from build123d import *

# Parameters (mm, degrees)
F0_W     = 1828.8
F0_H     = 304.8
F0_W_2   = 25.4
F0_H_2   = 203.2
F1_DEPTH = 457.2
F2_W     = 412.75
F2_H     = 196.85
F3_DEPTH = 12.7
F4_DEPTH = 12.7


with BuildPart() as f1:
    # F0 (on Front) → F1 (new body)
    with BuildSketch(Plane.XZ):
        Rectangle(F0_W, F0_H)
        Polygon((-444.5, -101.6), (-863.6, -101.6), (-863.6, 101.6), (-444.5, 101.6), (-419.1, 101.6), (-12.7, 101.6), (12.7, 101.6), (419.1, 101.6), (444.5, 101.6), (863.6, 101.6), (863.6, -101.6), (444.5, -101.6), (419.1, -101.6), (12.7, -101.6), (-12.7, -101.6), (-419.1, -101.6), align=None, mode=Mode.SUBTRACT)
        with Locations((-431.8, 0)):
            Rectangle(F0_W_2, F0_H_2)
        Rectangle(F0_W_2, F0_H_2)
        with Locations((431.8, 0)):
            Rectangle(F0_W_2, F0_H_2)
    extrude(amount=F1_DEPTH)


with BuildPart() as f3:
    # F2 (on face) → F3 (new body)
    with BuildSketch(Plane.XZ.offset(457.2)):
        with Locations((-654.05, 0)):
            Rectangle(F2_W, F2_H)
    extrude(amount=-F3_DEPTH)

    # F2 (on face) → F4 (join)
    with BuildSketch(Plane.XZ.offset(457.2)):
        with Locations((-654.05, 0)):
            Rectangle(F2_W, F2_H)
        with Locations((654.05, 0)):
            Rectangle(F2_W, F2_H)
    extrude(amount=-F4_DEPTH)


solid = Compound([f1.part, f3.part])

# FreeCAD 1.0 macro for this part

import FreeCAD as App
import Part
import Sketcher
from FreeCAD import Vector
Q = App.Units.Quantity

doc = App.newDocument("Part")
body = doc.addObject("PartDesign::Body", "Body")

# Sketch on XZ plane
sketch1 = body.newObject("Sketcher::SketchObject", "Sketch")
sketch1.AttachmentSupport = (doc.getObject("XZ_Plane"), [""])
sketch1.MapMode = "FlatFace"
sketch1.addGeometry(Part.LineSegment(Vector(-914, 152, 0), Vector(-914, -152, 0)), False)
sketch1.addGeometry(Part.LineSegment(Vector(-914, -152, 0), Vector(914, -152, 0)), False)
sketch1.addGeometry(Part.LineSegment(Vector(914, -152, 0), Vector(914, 152, 0)), False)
sketch1.addGeometry(Part.LineSegment(Vector(914, 152, 0), Vector(-914, 152, 0)), False)
sketch1.addGeometry(Part.LineSegment(Vector(864, -102, 0), Vector(444, -102, 0)), False)
sketch1.addGeometry(Part.LineSegment(Vector(444, -102, 0), Vector(444, 102, 0)), False)
sketch1.addGeometry(Part.LineSegment(Vector(444, 102, 0), Vector(864, 102, 0)), False)
sketch1.addGeometry(Part.LineSegment(Vector(864, 102, 0), Vector(864, -102, 0)), False)
sketch1.addGeometry(Part.LineSegment(Vector(419, -102, 0), Vector(13, -102, 0)), False)
sketch1.addGeometry(Part.LineSegment(Vector(13, -102, 0), Vector(13, 102, 0)), False)
sketch1.addGeometry(Part.LineSegment(Vector(13, 102, 0), Vector(419, 102, 0)), False)
sketch1.addGeometry(Part.LineSegment(Vector(419, 102, 0), Vector(419, -102, 0)), False)
sketch1.addGeometry(Part.LineSegment(Vector(-13, -102, 0), Vector(-419, -102, 0)), False)
sketch1.addGeometry(Part.LineSegment(Vector(-419, -102, 0), Vector(-419, 102, 0)), False)
sketch1.addGeometry(Part.LineSegment(Vector(-419, 102, 0), Vector(-13, 102, 0)), False)
sketch1.addGeometry(Part.LineSegment(Vector(-13, 102, 0), Vector(-13, -102, 0)), False)
sketch1.addGeometry(Part.LineSegment(Vector(-444, -102, 0), Vector(-864, -102, 0)), False)
sketch1.addGeometry(Part.LineSegment(Vector(-864, -102, 0), Vector(-864, 102, 0)), False)
sketch1.addGeometry(Part.LineSegment(Vector(-864, 102, 0), Vector(-444, 102, 0)), False)
sketch1.addGeometry(Part.LineSegment(Vector(-444, 102, 0), Vector(-444, -102, 0)), False)
sketch1.addConstraint(Sketcher.Constraint("Coincident", 0, 2, 1, 1))
sketch1.addConstraint(Sketcher.Constraint("Coincident", 1, 2, 2, 1))
sketch1.addConstraint(Sketcher.Constraint("Coincident", 2, 2, 3, 1))
sketch1.addConstraint(Sketcher.Constraint("Coincident", 3, 2, 0, 1))
sketch1.addConstraint(Sketcher.Constraint("Coincident", 4, 2, 5, 1))
sketch1.addConstraint(Sketcher.Constraint("Coincident", 5, 2, 6, 1))
sketch1.addConstraint(Sketcher.Constraint("Coincident", 6, 2, 7, 1))
sketch1.addConstraint(Sketcher.Constraint("Coincident", 7, 2, 4, 1))
sketch1.addConstraint(Sketcher.Constraint("Coincident", 8, 2, 9, 1))
sketch1.addConstraint(Sketcher.Constraint("Coincident", 9, 2, 10, 1))
sketch1.addConstraint(Sketcher.Constraint("Coincident", 10, 2, 11, 1))
sketch1.addConstraint(Sketcher.Constraint("Coincident", 11, 2, 8, 1))
sketch1.addConstraint(Sketcher.Constraint("Coincident", 12, 2, 13, 1))
sketch1.addConstraint(Sketcher.Constraint("Coincident", 13, 2, 14, 1))
sketch1.addConstraint(Sketcher.Constraint("Coincident", 14, 2, 15, 1))
sketch1.addConstraint(Sketcher.Constraint("Coincident", 15, 2, 12, 1))
sketch1.addConstraint(Sketcher.Constraint("Coincident", 16, 2, 17, 1))
sketch1.addConstraint(Sketcher.Constraint("Coincident", 17, 2, 18, 1))
sketch1.addConstraint(Sketcher.Constraint("Coincident", 18, 2, 19, 1))
sketch1.addConstraint(Sketcher.Constraint("Coincident", 19, 2, 16, 1))
sketch1.addConstraint(Sketcher.Constraint("Vertical", 0))
sketch1.addConstraint(Sketcher.Constraint("Horizontal", 1))
sketch1.addConstraint(Sketcher.Constraint("Vertical", 2))
sketch1.addConstraint(Sketcher.Constraint("Horizontal", 3))
sketch1.addConstraint(Sketcher.Constraint("Horizontal", 4))
sketch1.addConstraint(Sketcher.Constraint("Vertical", 5))
sketch1.addConstraint(Sketcher.Constraint("Horizontal", 6))
sketch1.addConstraint(Sketcher.Constraint("Vertical", 7))
sketch1.addConstraint(Sketcher.Constraint("Horizontal", 8))
sketch1.addConstraint(Sketcher.Constraint("Vertical", 9))
sketch1.addConstraint(Sketcher.Constraint("Horizontal", 10))
sketch1.addConstraint(Sketcher.Constraint("Vertical", 11))
sketch1.addConstraint(Sketcher.Constraint("Horizontal", 12))
sketch1.addConstraint(Sketcher.Constraint("Vertical", 13))
sketch1.addConstraint(Sketcher.Constraint("Horizontal", 14))
sketch1.addConstraint(Sketcher.Constraint("Vertical", 15))
sketch1.addConstraint(Sketcher.Constraint("Horizontal", 16))
sketch1.addConstraint(Sketcher.Constraint("Vertical", 17))
sketch1.addConstraint(Sketcher.Constraint("Horizontal", 18))
sketch1.addConstraint(Sketcher.Constraint("Vertical", 19))
sketch1.addConstraint(Sketcher.Constraint("Symmetric", 0, 2, 2, 2, -1, 1))
sketch1.addConstraint(Sketcher.Constraint("Symmetric", 10, 2, 12, 2, -1, 1))
sketch1.addConstraint(Sketcher.Constraint("Symmetric", 8, 2, 14, 2, -1, 1))
sketch1.addConstraint(Sketcher.Constraint("Symmetric", 6, 2, 16, 2, -1, 1))
sketch1.addConstraint(Sketcher.Constraint("Symmetric", 4, 2, 18, 2, -1, 1))
sketch1.addConstraint(Sketcher.Constraint("Horizontal", 7, 2, 8, 2))
sketch1.addConstraint(Sketcher.Constraint("Horizontal", 6, 2, 9, 2))
sketch1.addConstraint(Sketcher.Constraint("Horizontal", 11, 2, 12, 2))
sketch1.addConstraint(Sketcher.Constraint("DistanceX", 1, 1, 1, 2, Q("72 in")))
sketch1.addConstraint(Sketcher.Constraint("DistanceX", 8, 2, 8, 1, Q("16 in")))
sketch1.addConstraint(Sketcher.Constraint("DistanceY", 0, 2, 0, 1, Q("12 in")))
sketch1.addConstraint(Sketcher.Constraint("DistanceY", 5, 1, 5, 2, Q("8 in")))
sketch1.addConstraint(Sketcher.Constraint("DistanceX", 4, 2, 4, 1, Q("16.5 in")))
sketch1.addConstraint(Sketcher.Constraint("DistanceX", -1, 1, 6, 2, Q("34 in")))
sketch1.addConstraint(Sketcher.Constraint("DistanceX", 8, 2, 4, 2, Q("17 in")))
pad1 = body.newObject("PartDesign::Pad", "Pad")
pad1.Profile = sketch1
pad1.Length = Q("18 in")
body2 = doc.addObject("PartDesign::Body", "Body001")
body2.AllowCompound = True

# Sketch on XZ plane
sketch2 = body2.newObject("Sketcher::SketchObject", "Sketch001")
sketch2.AttachmentSupport = (doc.getObject("XZ_Plane001"), [""])
sketch2.MapMode = "FlatFace"
sketch2.AttachmentOffset = App.Placement(Vector(0, 0, 18 * 25.4), App.Rotation())
sketch2.addGeometry(Part.LineSegment(Vector(-860, 98, 0), Vector(-860, -98, 0)), False)
sketch2.addGeometry(Part.LineSegment(Vector(-860, -98, 0), Vector(-448, -98, 0)), False)
sketch2.addGeometry(Part.LineSegment(Vector(-448, -98, 0), Vector(-448, 98, 0)), False)
sketch2.addGeometry(Part.LineSegment(Vector(-448, 98, 0), Vector(-860, 98, 0)), False)
sketch2.addConstraint(Sketcher.Constraint("Coincident", 0, 2, 1, 1))
sketch2.addConstraint(Sketcher.Constraint("Coincident", 1, 2, 2, 1))
sketch2.addConstraint(Sketcher.Constraint("Coincident", 2, 2, 3, 1))
sketch2.addConstraint(Sketcher.Constraint("Coincident", 3, 2, 0, 1))
sketch2.addConstraint(Sketcher.Constraint("Vertical", 0))
sketch2.addConstraint(Sketcher.Constraint("Horizontal", 1))
sketch2.addConstraint(Sketcher.Constraint("Vertical", 2))
sketch2.addConstraint(Sketcher.Constraint("Horizontal", 3))
sketch2.addConstraint(Sketcher.Constraint("DistanceX", 1, 1, 1, 2, Q("16.25 in")))
sketch2.addConstraint(Sketcher.Constraint("DistanceY", 0, 2, 0, 1, Q("7.75 in")))
sketch2.addConstraint(Sketcher.Constraint("DistanceX", 0, 2, -1, 1, Q("33.875 in")))
sketch2.addConstraint(Sketcher.Constraint("DistanceY", 0, 2, -1, 1, Q("3.875 in")))
pad2 = body2.newObject("PartDesign::Pad", "Pad001")
pad2.Profile = sketch2
pad2.Length = Q("0.5 in")
pad2.Reversed = True

# Sketch on XZ plane
sketch3 = body2.newObject("Sketcher::SketchObject", "Sketch002")
sketch3.AttachmentSupport = (doc.getObject("XZ_Plane001"), [""])
sketch3.MapMode = "FlatFace"
sketch3.AttachmentOffset = App.Placement(Vector(0, 0, 18 * 25.4), App.Rotation())
sketch3.addGeometry(Part.LineSegment(Vector(-860, 98, 0), Vector(-860, -98, 0)), False)
sketch3.addGeometry(Part.LineSegment(Vector(-860, -98, 0), Vector(-448, -98, 0)), False)
sketch3.addGeometry(Part.LineSegment(Vector(-448, -98, 0), Vector(-448, 98, 0)), False)
sketch3.addGeometry(Part.LineSegment(Vector(-448, 98, 0), Vector(-860, 98, 0)), False)
sketch3.addGeometry(Part.LineSegment(Vector(448, 98, 0), Vector(448, -98, 0)), False)
sketch3.addGeometry(Part.LineSegment(Vector(448, -98, 0), Vector(860, -98, 0)), False)
sketch3.addGeometry(Part.LineSegment(Vector(860, -98, 0), Vector(860, 98, 0)), False)
sketch3.addGeometry(Part.LineSegment(Vector(860, 98, 0), Vector(448, 98, 0)), False)
sketch3.addConstraint(Sketcher.Constraint("Coincident", 0, 2, 1, 1))
sketch3.addConstraint(Sketcher.Constraint("Coincident", 1, 2, 2, 1))
sketch3.addConstraint(Sketcher.Constraint("Coincident", 2, 2, 3, 1))
sketch3.addConstraint(Sketcher.Constraint("Coincident", 3, 2, 0, 1))
sketch3.addConstraint(Sketcher.Constraint("Coincident", 4, 2, 5, 1))
sketch3.addConstraint(Sketcher.Constraint("Coincident", 5, 2, 6, 1))
sketch3.addConstraint(Sketcher.Constraint("Coincident", 6, 2, 7, 1))
sketch3.addConstraint(Sketcher.Constraint("Coincident", 7, 2, 4, 1))
sketch3.addConstraint(Sketcher.Constraint("Vertical", 0))
sketch3.addConstraint(Sketcher.Constraint("Horizontal", 1))
sketch3.addConstraint(Sketcher.Constraint("Vertical", 2))
sketch3.addConstraint(Sketcher.Constraint("Horizontal", 3))
sketch3.addConstraint(Sketcher.Constraint("Vertical", 4))
sketch3.addConstraint(Sketcher.Constraint("Horizontal", 5))
sketch3.addConstraint(Sketcher.Constraint("Vertical", 6))
sketch3.addConstraint(Sketcher.Constraint("Horizontal", 7))
sketch3.addConstraint(Sketcher.Constraint("Symmetric", 2, 2, 4, 2, -1, 1))
sketch3.addConstraint(Sketcher.Constraint("Symmetric", 0, 2, 6, 2, -1, 1))
sketch3.addConstraint(Sketcher.Constraint("Horizontal", 1, 2, 4, 2))
sketch3.addConstraint(Sketcher.Constraint("DistanceX", 1, 1, 1, 2, Q("16.25 in")))
sketch3.addConstraint(Sketcher.Constraint("DistanceY", 0, 2, 0, 1, Q("7.75 in")))
sketch3.addConstraint(Sketcher.Constraint("DistanceX", 0, 2, 4, 2, Q("51.5 in")))
pad3 = body2.newObject("PartDesign::Pad", "Pad002")
pad3.Profile = sketch3
pad3.Length = Q("0.5 in")
pad3.Reversed = True

doc.recompute()
